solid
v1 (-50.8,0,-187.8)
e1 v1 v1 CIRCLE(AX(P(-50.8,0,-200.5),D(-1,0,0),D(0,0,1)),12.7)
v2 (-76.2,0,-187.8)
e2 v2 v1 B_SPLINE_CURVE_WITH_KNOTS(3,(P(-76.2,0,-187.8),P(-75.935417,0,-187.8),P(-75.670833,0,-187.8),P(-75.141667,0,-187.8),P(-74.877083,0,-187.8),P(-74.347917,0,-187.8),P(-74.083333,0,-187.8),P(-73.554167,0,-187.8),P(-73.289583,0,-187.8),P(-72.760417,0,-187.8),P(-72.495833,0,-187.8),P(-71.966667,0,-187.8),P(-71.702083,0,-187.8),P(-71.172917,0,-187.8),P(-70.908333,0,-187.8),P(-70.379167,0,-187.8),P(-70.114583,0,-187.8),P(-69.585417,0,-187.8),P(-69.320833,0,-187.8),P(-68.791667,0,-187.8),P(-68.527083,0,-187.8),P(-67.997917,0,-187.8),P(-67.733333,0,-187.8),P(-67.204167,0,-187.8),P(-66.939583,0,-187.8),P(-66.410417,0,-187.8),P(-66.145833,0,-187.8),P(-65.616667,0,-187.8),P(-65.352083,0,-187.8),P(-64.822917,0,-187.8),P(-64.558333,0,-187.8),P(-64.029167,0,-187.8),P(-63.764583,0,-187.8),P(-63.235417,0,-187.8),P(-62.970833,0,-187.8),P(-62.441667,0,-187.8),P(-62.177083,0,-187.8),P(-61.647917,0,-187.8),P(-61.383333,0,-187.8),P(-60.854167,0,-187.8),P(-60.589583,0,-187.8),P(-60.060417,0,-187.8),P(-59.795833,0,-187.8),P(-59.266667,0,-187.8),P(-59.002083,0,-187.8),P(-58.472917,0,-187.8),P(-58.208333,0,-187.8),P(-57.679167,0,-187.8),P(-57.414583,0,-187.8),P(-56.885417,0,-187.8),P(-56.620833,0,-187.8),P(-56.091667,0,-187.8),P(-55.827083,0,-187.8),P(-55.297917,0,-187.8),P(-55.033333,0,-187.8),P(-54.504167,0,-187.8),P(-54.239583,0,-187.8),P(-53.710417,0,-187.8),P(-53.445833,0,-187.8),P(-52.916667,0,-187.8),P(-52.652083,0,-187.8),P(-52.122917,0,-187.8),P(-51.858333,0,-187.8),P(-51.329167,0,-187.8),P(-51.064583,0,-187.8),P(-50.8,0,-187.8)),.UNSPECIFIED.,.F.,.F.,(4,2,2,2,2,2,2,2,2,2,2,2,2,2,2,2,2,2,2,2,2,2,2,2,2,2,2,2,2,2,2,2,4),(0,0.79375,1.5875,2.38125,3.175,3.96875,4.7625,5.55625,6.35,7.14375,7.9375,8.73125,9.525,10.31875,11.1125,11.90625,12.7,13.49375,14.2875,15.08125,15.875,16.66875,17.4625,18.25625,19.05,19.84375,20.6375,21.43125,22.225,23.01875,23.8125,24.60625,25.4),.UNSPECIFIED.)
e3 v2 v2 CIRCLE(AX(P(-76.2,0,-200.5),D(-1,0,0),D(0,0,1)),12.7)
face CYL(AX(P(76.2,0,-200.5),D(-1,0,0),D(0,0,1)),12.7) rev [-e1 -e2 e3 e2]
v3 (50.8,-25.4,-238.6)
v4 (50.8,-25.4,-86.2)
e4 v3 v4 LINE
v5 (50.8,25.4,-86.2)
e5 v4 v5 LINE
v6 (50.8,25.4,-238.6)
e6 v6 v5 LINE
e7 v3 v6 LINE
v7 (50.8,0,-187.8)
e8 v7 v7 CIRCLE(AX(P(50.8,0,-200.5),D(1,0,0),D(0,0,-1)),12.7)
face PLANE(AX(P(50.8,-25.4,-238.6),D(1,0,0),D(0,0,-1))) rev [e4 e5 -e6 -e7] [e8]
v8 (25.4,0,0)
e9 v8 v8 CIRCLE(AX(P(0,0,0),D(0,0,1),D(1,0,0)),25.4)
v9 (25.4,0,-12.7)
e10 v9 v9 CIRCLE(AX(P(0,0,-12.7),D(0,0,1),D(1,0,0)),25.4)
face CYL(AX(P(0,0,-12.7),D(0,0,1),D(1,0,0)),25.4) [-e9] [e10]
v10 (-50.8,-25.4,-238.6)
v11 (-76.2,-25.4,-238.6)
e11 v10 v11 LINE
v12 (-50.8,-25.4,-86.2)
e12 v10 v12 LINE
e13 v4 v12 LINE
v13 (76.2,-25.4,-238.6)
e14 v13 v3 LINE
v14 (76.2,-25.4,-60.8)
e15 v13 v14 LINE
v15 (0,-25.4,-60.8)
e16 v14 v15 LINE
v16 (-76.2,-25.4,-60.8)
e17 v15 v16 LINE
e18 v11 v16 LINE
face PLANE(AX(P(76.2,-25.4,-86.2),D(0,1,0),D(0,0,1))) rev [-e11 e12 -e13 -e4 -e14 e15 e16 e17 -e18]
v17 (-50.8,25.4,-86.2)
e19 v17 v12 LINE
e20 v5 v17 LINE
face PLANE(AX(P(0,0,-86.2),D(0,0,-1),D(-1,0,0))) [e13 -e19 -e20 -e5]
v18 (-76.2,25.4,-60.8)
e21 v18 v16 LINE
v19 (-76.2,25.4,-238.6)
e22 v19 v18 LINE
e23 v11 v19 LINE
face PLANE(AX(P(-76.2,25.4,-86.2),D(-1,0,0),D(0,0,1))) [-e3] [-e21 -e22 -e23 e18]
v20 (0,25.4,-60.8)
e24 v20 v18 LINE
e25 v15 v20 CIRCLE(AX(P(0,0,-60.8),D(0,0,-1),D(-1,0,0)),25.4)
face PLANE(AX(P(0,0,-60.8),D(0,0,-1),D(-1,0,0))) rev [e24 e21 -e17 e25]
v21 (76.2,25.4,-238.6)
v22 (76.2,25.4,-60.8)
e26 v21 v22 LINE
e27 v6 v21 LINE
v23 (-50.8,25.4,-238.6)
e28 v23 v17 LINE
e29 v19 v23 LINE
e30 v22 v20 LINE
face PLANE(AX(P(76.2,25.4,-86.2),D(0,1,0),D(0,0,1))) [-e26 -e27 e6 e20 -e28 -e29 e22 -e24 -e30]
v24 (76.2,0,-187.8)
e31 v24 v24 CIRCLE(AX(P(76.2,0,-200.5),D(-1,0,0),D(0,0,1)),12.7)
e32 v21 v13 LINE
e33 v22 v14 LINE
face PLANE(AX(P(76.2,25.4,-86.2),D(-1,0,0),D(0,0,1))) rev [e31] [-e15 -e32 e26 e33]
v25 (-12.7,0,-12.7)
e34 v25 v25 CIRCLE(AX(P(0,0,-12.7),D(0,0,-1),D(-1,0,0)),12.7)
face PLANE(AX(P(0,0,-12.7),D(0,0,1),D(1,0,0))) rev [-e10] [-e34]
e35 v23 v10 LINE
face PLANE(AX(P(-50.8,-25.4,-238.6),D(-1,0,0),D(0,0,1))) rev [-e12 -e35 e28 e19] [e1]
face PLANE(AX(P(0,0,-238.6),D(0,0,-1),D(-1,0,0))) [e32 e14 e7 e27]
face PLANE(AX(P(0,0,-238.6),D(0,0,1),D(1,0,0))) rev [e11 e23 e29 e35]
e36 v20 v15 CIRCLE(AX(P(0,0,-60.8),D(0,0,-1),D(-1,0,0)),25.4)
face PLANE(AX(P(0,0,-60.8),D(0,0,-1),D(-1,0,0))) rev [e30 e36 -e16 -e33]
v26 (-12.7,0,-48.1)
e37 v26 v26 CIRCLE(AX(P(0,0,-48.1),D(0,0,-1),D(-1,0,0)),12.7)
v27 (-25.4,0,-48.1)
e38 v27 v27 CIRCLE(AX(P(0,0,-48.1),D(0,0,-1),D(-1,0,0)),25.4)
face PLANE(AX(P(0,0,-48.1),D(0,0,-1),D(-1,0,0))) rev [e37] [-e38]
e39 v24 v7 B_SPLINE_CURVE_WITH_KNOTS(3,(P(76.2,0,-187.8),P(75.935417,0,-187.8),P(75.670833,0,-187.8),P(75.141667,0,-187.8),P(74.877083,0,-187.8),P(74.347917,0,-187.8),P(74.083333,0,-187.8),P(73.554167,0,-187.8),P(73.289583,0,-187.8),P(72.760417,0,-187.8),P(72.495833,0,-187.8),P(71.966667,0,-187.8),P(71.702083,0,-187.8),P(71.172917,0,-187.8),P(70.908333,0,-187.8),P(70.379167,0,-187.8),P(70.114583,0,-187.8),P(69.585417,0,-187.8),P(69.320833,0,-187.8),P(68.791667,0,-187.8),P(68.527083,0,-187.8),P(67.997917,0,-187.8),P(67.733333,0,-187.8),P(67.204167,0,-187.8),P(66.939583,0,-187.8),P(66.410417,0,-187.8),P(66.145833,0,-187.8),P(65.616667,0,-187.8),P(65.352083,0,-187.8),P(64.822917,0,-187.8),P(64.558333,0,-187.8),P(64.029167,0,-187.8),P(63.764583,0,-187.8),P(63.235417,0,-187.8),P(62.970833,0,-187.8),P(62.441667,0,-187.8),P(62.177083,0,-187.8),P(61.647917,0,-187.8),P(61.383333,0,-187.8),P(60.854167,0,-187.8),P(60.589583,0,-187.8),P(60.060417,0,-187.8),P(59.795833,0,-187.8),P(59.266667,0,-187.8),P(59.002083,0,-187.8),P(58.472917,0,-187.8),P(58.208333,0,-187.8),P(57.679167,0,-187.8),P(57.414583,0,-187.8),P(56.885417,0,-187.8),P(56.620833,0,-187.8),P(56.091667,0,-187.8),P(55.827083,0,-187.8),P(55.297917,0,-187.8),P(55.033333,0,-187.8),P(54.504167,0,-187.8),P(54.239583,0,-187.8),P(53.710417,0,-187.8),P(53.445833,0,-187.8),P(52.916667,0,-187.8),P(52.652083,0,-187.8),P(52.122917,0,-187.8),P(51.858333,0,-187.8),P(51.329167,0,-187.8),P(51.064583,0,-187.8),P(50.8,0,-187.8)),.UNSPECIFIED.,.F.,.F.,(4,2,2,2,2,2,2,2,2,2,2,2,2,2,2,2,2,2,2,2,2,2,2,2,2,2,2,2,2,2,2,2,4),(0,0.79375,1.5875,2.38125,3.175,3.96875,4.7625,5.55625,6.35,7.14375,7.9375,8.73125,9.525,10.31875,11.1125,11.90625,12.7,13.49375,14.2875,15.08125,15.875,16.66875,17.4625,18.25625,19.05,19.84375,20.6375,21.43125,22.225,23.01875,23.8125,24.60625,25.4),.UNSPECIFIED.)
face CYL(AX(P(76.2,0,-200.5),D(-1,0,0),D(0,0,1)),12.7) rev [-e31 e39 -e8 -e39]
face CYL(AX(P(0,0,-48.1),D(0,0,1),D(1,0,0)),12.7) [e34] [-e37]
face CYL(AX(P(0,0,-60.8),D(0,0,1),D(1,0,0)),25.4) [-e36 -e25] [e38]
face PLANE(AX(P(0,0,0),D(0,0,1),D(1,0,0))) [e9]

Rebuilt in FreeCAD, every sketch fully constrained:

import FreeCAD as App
import Part
import Sketcher
Q = App.Units.Quantity

doc = App.newDocument("Part")
body = doc.addObject("PartDesign::Body", "Body")

# Sketch on XY plane
sketch1 = body.newObject("Sketcher::SketchObject", "Sketch")
sketch1.AttachmentSupport = (doc.getObject("XY_Plane"), [""])
sketch1.MapMode = "FlatFace"
sketch1.addGeometry(Part.Circle(App.Vector(0, 0, 0), App.Vector(0, 0, 1), 25), False)
sketch1.addConstraint(Sketcher.Constraint("Coincident", 0, 3, -1, 1))
sketch1.addConstraint(Sketcher.Constraint("Diameter", 0, Q("2 in")))
pad1 = body.newObject("PartDesign::Pad", "Pad")
pad1.Profile = sketch1
pad1.Length = Q("0.5 in")
pad1.Reversed = True

# Sketch on XY plane
sketch2 = body.newObject("Sketcher::SketchObject", "Sketch001")
sketch2.AttachmentSupport = (doc.getObject("XY_Plane"), [""])
sketch2.MapMode = "FlatFace"
sketch2.AttachmentOffset = App.Placement(App.Vector(0, 0, -0.5 * 25.4), App.Rotation())
sketch2.addGeometry(Part.Circle(App.Vector(0, 0, 0), App.Vector(0, 0, 1), 13), False)
sketch2.addConstraint(Sketcher.Constraint("Coincident", 0, 3, -1, 1))
sketch2.addConstraint(Sketcher.Constraint("Diameter", 0, Q("1 in")))
pad2 = body.newObject("PartDesign::Pad", "Pad001")
pad2.Profile = sketch2
pad2.Length = 35.4
pad2.Reversed = True

# Sketch on XY plane
sketch3 = body.newObject("Sketcher::SketchObject", "Sketch002")
sketch3.AttachmentSupport = (doc.getObject("XY_Plane"), [""])
sketch3.MapMode = "FlatFace"
sketch3.AttachmentOffset = App.Placement(App.Vector(0, 0, -48.1), App.Rotation())
sketch3.addGeometry(Part.Circle(App.Vector(0, 0, 0), App.Vector(0, 0, 1), 25), False)
sketch3.addConstraint(Sketcher.Constraint("Coincident", 0, 3, -1, 1))
sketch3.addConstraint(Sketcher.Constraint("Diameter", 0, Q("2 in")))
pad3 = body.newObject("PartDesign::Pad", "Pad002")
pad3.Profile = sketch3
pad3.Length = Q("0.5 in")
pad3.Reversed = True

# Sketch on XY plane
sketch4 = body.newObject("Sketcher::SketchObject", "Sketch003")
sketch4.AttachmentSupport = (doc.getObject("XY_Plane"), [""])
sketch4.MapMode = "FlatFace"
sketch4.AttachmentOffset = App.Placement(App.Vector(0, 0, -60.8), App.Rotation())
sketch4.addGeometry(Part.LineSegment(App.Vector(76, 25, 0), App.Vector(76, -25, 0)), False)
sketch4.addGeometry(Part.LineSegment(App.Vector(76, -25, 0), App.Vector(-76, -25, 0)), False)
sketch4.addGeometry(Part.LineSegment(App.Vector(-76, -25, 0), App.Vector(-76, 25, 0)), False)
sketch4.addGeometry(Part.LineSegment(App.Vector(-76, 25, 0), App.Vector(76, 25, 0)), False)
sketch4.addConstraint(Sketcher.Constraint("Coincident", 0, 2, 1, 1))
sketch4.addConstraint(Sketcher.Constraint("Coincident", 1, 2, 2, 1))
sketch4.addConstraint(Sketcher.Constraint("Coincident", 2, 2, 3, 1))
sketch4.addConstraint(Sketcher.Constraint("Coincident", 3, 2, 0, 1))
sketch4.addConstraint(Sketcher.Constraint("Vertical", 0))
sketch4.addConstraint(Sketcher.Constraint("Horizontal", 1))
sketch4.addConstraint(Sketcher.Constraint("Vertical", 2))
sketch4.addConstraint(Sketcher.Constraint("Horizontal", 3))
sketch4.addConstraint(Sketcher.Constraint("Symmetric", 0, 2, 2, 2, -1, 1))
sketch4.addConstraint(Sketcher.Constraint("DistanceX", 1, 2, 1, 1, Q("6 in")))
sketch4.addConstraint(Sketcher.Constraint("DistanceY", 0, 2, 0, 1, Q("2 in")))
pad4 = body.newObject("PartDesign::Pad", "Pad003")
pad4.Profile = sketch4
pad4.Length = Q("1 in")
pad4.Reversed = True

# Sketch on XY plane
sketch5 = body.newObject("Sketcher::SketchObject", "Sketch004")
sketch5.AttachmentSupport = (doc.getObject("XY_Plane"), [""])
sketch5.MapMode = "FlatFace"
sketch5.AttachmentOffset = App.Placement(App.Vector(0, 0, -86.2), App.Rotation())
sketch5.addGeometry(Part.LineSegment(App.Vector(76, 25, 0), App.Vector(76, -25, 0)), False)
sketch5.addGeometry(Part.LineSegment(App.Vector(76, -25, 0), App.Vector(51, -25, 0)), False)
sketch5.addGeometry(Part.LineSegment(App.Vector(51, -25, 0), App.Vector(51, 25, 0)), False)
sketch5.addGeometry(Part.LineSegment(App.Vector(51, 25, 0), App.Vector(76, 25, 0)), False)
sketch5.addGeometry(Part.LineSegment(App.Vector(-51, 25, 0), App.Vector(-51, -25, 0)), False)
sketch5.addGeometry(Part.LineSegment(App.Vector(-51, -25, 0), App.Vector(-76, -25, 0)), False)
sketch5.addGeometry(Part.LineSegment(App.Vector(-76, -25, 0), App.Vector(-76, 25, 0)), False)
sketch5.addGeometry(Part.LineSegment(App.Vector(-76, 25, 0), App.Vector(-51, 25, 0)), False)
sketch5.addConstraint(Sketcher.Constraint("Coincident", 0, 2, 1, 1))
sketch5.addConstraint(Sketcher.Constraint("Coincident", 1, 2, 2, 1))
sketch5.addConstraint(Sketcher.Constraint("Coincident", 2, 2, 3, 1))
sketch5.addConstraint(Sketcher.Constraint("Coincident", 3, 2, 0, 1))
sketch5.addConstraint(Sketcher.Constraint("Coincident", 4, 2, 5, 1))
sketch5.addConstraint(Sketcher.Constraint("Coincident", 5, 2, 6, 1))
sketch5.addConstraint(Sketcher.Constraint("Coincident", 6, 2, 7, 1))
sketch5.addConstraint(Sketcher.Constraint("Coincident", 7, 2, 4, 1))
sketch5.addConstraint(Sketcher.Constraint("Vertical", 0))
sketch5.addConstraint(Sketcher.Constraint("Horizontal", 1))
sketch5.addConstraint(Sketcher.Constraint("Vertical", 2))
sketch5.addConstraint(Sketcher.Constraint("Horizontal", 3))
sketch5.addConstraint(Sketcher.Constraint("Vertical", 4))
sketch5.addConstraint(Sketcher.Constraint("Horizontal", 5))
sketch5.addConstraint(Sketcher.Constraint("Vertical", 6))
sketch5.addConstraint(Sketcher.Constraint("Horizontal", 7))
sketch5.addConstraint(Sketcher.Constraint("Symmetric", 2, 2, 4, 2, -1, 1))
sketch5.addConstraint(Sketcher.Constraint("Symmetric", 0, 2, 6, 2, -1, 1))
sketch5.addConstraint(Sketcher.Constraint("Horizontal", 1, 2, 4, 2))
sketch5.addConstraint(Sketcher.Constraint("DistanceX", 1, 2, 1, 1, Q("1 in")))
sketch5.addConstraint(Sketcher.Constraint("DistanceY", 0, 2, 0, 1, Q("2 in")))
sketch5.addConstraint(Sketcher.Constraint("DistanceX", -1, 1, 0, 2, Q("3 in")))
pad5 = body.newObject("PartDesign::Pad", "Pad004")
pad5.Profile = sketch5
pad5.Length = Q("6 in")
pad5.Reversed = True

# Sketch on YZ plane
sketch6 = body.newObject("Sketcher::SketchObject", "Sketch005")
sketch6.AttachmentSupport = (doc.getObject("YZ_Plane"), [""])
sketch6.MapMode = "FlatFace"
sketch6.AttachmentOffset = App.Placement(App.Vector(0, 0, -3 * 25.4), App.Rotation())
sketch6.addGeometry(Part.Circle(App.Vector(0, -200, 0), App.Vector(0, 0, 1), 13), False)
sketch6.addConstraint(Sketcher.Constraint("PointOnObject", 0, 3, -2))
sketch6.addConstraint(Sketcher.Constraint("Diameter", 0, Q("1 in")))
sketch6.addConstraint(Sketcher.Constraint("DistanceY", 0, 3, -1, 1, 200.5))
pocket1 = body.newObject("PartDesign::Pocket", "Pocket")
pocket1.Profile = sketch6
pocket1.Type = "ThroughAll"
pocket1.Midplane = True

doc.recompute()
